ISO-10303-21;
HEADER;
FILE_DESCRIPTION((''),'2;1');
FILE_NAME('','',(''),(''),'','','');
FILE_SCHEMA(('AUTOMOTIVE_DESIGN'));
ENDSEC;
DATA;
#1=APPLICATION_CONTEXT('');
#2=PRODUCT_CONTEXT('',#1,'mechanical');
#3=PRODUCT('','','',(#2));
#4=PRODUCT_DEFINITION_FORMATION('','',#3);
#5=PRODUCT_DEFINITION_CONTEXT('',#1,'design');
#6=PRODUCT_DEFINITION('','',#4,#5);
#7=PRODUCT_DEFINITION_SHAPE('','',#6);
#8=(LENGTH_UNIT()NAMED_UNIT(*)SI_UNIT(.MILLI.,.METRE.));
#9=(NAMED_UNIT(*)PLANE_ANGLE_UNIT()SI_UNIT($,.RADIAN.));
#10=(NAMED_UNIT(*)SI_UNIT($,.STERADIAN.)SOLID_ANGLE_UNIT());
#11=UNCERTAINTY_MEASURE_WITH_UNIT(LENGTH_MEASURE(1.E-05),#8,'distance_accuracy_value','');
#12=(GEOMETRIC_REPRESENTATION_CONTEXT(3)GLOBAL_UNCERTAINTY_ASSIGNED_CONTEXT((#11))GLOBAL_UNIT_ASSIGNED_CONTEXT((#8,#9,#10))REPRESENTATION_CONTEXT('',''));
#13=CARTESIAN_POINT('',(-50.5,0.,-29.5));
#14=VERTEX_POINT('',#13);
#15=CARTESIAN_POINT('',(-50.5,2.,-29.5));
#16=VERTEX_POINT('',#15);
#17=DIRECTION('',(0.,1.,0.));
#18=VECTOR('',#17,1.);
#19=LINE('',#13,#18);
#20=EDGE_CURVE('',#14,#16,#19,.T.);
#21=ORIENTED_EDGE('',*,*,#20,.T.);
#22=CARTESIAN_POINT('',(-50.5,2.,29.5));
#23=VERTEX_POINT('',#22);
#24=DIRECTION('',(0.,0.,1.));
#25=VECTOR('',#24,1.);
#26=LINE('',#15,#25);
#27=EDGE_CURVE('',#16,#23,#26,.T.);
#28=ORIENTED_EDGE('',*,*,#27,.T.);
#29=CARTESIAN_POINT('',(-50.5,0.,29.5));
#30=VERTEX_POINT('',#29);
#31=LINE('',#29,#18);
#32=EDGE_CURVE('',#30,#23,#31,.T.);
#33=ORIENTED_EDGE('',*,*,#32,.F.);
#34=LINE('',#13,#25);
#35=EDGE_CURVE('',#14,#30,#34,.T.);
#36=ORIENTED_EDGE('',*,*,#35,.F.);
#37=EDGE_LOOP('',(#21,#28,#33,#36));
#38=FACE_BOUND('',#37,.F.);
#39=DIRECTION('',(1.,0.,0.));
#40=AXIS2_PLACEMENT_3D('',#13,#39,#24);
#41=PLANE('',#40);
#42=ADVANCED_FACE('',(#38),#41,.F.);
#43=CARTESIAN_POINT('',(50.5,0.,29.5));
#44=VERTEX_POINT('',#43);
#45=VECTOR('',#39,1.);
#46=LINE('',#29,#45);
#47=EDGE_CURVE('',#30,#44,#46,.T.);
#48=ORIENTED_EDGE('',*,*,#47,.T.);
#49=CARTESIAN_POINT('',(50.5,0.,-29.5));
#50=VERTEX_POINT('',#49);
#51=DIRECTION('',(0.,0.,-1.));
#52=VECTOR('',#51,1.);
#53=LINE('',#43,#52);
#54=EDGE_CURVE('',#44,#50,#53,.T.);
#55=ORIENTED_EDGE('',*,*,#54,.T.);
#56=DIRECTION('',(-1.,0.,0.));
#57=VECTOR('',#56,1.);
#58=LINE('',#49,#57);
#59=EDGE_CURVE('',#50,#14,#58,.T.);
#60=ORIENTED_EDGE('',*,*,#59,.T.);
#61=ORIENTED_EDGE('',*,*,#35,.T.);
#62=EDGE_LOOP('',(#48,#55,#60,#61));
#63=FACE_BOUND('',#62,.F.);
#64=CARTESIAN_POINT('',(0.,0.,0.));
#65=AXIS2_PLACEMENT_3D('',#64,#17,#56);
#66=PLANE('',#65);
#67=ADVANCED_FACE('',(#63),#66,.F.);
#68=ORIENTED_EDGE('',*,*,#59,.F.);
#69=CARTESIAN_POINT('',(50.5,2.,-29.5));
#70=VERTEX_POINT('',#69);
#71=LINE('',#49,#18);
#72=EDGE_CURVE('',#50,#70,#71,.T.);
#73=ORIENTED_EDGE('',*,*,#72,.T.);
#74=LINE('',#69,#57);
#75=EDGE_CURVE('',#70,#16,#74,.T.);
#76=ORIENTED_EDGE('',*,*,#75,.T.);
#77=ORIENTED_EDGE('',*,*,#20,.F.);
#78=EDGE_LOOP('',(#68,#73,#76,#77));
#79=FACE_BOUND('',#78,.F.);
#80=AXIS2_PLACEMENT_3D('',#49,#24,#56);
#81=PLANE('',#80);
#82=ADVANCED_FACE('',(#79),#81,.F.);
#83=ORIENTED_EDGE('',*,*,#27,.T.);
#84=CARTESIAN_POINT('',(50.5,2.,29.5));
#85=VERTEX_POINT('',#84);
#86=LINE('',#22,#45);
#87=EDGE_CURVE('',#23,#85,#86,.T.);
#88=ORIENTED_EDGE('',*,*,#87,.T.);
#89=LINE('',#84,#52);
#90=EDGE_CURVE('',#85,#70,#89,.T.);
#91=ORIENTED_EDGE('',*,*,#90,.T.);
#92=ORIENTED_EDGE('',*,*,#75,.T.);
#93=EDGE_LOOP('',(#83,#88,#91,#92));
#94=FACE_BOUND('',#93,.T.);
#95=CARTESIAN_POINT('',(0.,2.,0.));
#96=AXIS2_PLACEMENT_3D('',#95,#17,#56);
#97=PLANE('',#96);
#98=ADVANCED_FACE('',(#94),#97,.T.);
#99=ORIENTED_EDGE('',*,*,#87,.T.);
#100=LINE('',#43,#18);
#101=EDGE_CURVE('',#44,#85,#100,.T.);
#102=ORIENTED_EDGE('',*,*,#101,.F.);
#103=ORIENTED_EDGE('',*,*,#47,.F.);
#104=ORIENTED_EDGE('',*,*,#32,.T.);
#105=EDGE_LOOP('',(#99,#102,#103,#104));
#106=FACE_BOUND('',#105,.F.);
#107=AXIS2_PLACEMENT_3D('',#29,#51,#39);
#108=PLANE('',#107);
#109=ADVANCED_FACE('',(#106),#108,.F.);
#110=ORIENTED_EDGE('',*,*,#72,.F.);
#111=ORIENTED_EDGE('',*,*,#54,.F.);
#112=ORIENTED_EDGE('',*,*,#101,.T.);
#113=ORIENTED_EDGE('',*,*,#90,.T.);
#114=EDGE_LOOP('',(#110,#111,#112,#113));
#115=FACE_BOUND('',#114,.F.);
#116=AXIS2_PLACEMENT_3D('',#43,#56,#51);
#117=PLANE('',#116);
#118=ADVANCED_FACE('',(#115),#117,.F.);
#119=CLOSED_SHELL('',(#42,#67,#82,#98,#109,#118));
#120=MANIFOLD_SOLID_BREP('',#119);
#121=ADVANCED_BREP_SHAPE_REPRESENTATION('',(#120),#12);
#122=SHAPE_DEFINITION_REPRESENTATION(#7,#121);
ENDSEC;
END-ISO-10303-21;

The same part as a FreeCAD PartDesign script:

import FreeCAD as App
import Part
import Sketcher

doc = App.newDocument("Part")
body = doc.addObject("PartDesign::Body", "Body")

# Sketch on XZ plane
sketch1 = body.newObject("Sketcher::SketchObject", "Sketch")
sketch1.AttachmentSupport = (doc.getObject("XZ_Plane"), [""])
sketch1.MapMode = "FlatFace"
sketch1.addGeometry(Part.LineSegment(App.Vector(50, 30, 0), App.Vector(50, -30, 0)), False)
sketch1.addGeometry(Part.LineSegment(App.Vector(50, -30, 0), App.Vector(-50, -30, 0)), False)
sketch1.addGeometry(Part.LineSegment(App.Vector(-50, -30, 0), App.Vector(-50, 30, 0)), False)
sketch1.addGeometry(Part.LineSegment(App.Vector(-50, 30, 0), App.Vector(50, 30, 0)), False)
sketch1.addConstraint(Sketcher.Constraint("Coincident", 0, 2, 1, 1))
sketch1.addConstraint(Sketcher.Constraint("Coincident", 1, 2, 2, 1))
sketch1.addConstraint(Sketcher.Constraint("Coincident", 2, 2, 3, 1))
sketch1.addConstraint(Sketcher.Constraint("Coincident", 3, 2, 0, 1))
sketch1.addConstraint(Sketcher.Constraint("Vertical", 0))
sketch1.addConstraint(Sketcher.Constraint("Horizontal", 1))
sketch1.addConstraint(Sketcher.Constraint("Vertical", 2))
sketch1.addConstraint(Sketcher.Constraint("Horizontal", 3))
sketch1.addConstraint(Sketcher.Constraint("Symmetric", 0, 2, 2, 2, -1, 1))
sketch1.addConstraint(Sketcher.Constraint("DistanceX", 1, 2, 1, 1, 101.0))
sketch1.addConstraint(Sketcher.Constraint("DistanceY", 0, 2, 0, 1, 59.0))
pad1 = body.newObject("PartDesign::Pad", "Pad")
pad1.Profile = sketch1
pad1.Length = 2
pad1.Reversed = True

doc.recompute()
